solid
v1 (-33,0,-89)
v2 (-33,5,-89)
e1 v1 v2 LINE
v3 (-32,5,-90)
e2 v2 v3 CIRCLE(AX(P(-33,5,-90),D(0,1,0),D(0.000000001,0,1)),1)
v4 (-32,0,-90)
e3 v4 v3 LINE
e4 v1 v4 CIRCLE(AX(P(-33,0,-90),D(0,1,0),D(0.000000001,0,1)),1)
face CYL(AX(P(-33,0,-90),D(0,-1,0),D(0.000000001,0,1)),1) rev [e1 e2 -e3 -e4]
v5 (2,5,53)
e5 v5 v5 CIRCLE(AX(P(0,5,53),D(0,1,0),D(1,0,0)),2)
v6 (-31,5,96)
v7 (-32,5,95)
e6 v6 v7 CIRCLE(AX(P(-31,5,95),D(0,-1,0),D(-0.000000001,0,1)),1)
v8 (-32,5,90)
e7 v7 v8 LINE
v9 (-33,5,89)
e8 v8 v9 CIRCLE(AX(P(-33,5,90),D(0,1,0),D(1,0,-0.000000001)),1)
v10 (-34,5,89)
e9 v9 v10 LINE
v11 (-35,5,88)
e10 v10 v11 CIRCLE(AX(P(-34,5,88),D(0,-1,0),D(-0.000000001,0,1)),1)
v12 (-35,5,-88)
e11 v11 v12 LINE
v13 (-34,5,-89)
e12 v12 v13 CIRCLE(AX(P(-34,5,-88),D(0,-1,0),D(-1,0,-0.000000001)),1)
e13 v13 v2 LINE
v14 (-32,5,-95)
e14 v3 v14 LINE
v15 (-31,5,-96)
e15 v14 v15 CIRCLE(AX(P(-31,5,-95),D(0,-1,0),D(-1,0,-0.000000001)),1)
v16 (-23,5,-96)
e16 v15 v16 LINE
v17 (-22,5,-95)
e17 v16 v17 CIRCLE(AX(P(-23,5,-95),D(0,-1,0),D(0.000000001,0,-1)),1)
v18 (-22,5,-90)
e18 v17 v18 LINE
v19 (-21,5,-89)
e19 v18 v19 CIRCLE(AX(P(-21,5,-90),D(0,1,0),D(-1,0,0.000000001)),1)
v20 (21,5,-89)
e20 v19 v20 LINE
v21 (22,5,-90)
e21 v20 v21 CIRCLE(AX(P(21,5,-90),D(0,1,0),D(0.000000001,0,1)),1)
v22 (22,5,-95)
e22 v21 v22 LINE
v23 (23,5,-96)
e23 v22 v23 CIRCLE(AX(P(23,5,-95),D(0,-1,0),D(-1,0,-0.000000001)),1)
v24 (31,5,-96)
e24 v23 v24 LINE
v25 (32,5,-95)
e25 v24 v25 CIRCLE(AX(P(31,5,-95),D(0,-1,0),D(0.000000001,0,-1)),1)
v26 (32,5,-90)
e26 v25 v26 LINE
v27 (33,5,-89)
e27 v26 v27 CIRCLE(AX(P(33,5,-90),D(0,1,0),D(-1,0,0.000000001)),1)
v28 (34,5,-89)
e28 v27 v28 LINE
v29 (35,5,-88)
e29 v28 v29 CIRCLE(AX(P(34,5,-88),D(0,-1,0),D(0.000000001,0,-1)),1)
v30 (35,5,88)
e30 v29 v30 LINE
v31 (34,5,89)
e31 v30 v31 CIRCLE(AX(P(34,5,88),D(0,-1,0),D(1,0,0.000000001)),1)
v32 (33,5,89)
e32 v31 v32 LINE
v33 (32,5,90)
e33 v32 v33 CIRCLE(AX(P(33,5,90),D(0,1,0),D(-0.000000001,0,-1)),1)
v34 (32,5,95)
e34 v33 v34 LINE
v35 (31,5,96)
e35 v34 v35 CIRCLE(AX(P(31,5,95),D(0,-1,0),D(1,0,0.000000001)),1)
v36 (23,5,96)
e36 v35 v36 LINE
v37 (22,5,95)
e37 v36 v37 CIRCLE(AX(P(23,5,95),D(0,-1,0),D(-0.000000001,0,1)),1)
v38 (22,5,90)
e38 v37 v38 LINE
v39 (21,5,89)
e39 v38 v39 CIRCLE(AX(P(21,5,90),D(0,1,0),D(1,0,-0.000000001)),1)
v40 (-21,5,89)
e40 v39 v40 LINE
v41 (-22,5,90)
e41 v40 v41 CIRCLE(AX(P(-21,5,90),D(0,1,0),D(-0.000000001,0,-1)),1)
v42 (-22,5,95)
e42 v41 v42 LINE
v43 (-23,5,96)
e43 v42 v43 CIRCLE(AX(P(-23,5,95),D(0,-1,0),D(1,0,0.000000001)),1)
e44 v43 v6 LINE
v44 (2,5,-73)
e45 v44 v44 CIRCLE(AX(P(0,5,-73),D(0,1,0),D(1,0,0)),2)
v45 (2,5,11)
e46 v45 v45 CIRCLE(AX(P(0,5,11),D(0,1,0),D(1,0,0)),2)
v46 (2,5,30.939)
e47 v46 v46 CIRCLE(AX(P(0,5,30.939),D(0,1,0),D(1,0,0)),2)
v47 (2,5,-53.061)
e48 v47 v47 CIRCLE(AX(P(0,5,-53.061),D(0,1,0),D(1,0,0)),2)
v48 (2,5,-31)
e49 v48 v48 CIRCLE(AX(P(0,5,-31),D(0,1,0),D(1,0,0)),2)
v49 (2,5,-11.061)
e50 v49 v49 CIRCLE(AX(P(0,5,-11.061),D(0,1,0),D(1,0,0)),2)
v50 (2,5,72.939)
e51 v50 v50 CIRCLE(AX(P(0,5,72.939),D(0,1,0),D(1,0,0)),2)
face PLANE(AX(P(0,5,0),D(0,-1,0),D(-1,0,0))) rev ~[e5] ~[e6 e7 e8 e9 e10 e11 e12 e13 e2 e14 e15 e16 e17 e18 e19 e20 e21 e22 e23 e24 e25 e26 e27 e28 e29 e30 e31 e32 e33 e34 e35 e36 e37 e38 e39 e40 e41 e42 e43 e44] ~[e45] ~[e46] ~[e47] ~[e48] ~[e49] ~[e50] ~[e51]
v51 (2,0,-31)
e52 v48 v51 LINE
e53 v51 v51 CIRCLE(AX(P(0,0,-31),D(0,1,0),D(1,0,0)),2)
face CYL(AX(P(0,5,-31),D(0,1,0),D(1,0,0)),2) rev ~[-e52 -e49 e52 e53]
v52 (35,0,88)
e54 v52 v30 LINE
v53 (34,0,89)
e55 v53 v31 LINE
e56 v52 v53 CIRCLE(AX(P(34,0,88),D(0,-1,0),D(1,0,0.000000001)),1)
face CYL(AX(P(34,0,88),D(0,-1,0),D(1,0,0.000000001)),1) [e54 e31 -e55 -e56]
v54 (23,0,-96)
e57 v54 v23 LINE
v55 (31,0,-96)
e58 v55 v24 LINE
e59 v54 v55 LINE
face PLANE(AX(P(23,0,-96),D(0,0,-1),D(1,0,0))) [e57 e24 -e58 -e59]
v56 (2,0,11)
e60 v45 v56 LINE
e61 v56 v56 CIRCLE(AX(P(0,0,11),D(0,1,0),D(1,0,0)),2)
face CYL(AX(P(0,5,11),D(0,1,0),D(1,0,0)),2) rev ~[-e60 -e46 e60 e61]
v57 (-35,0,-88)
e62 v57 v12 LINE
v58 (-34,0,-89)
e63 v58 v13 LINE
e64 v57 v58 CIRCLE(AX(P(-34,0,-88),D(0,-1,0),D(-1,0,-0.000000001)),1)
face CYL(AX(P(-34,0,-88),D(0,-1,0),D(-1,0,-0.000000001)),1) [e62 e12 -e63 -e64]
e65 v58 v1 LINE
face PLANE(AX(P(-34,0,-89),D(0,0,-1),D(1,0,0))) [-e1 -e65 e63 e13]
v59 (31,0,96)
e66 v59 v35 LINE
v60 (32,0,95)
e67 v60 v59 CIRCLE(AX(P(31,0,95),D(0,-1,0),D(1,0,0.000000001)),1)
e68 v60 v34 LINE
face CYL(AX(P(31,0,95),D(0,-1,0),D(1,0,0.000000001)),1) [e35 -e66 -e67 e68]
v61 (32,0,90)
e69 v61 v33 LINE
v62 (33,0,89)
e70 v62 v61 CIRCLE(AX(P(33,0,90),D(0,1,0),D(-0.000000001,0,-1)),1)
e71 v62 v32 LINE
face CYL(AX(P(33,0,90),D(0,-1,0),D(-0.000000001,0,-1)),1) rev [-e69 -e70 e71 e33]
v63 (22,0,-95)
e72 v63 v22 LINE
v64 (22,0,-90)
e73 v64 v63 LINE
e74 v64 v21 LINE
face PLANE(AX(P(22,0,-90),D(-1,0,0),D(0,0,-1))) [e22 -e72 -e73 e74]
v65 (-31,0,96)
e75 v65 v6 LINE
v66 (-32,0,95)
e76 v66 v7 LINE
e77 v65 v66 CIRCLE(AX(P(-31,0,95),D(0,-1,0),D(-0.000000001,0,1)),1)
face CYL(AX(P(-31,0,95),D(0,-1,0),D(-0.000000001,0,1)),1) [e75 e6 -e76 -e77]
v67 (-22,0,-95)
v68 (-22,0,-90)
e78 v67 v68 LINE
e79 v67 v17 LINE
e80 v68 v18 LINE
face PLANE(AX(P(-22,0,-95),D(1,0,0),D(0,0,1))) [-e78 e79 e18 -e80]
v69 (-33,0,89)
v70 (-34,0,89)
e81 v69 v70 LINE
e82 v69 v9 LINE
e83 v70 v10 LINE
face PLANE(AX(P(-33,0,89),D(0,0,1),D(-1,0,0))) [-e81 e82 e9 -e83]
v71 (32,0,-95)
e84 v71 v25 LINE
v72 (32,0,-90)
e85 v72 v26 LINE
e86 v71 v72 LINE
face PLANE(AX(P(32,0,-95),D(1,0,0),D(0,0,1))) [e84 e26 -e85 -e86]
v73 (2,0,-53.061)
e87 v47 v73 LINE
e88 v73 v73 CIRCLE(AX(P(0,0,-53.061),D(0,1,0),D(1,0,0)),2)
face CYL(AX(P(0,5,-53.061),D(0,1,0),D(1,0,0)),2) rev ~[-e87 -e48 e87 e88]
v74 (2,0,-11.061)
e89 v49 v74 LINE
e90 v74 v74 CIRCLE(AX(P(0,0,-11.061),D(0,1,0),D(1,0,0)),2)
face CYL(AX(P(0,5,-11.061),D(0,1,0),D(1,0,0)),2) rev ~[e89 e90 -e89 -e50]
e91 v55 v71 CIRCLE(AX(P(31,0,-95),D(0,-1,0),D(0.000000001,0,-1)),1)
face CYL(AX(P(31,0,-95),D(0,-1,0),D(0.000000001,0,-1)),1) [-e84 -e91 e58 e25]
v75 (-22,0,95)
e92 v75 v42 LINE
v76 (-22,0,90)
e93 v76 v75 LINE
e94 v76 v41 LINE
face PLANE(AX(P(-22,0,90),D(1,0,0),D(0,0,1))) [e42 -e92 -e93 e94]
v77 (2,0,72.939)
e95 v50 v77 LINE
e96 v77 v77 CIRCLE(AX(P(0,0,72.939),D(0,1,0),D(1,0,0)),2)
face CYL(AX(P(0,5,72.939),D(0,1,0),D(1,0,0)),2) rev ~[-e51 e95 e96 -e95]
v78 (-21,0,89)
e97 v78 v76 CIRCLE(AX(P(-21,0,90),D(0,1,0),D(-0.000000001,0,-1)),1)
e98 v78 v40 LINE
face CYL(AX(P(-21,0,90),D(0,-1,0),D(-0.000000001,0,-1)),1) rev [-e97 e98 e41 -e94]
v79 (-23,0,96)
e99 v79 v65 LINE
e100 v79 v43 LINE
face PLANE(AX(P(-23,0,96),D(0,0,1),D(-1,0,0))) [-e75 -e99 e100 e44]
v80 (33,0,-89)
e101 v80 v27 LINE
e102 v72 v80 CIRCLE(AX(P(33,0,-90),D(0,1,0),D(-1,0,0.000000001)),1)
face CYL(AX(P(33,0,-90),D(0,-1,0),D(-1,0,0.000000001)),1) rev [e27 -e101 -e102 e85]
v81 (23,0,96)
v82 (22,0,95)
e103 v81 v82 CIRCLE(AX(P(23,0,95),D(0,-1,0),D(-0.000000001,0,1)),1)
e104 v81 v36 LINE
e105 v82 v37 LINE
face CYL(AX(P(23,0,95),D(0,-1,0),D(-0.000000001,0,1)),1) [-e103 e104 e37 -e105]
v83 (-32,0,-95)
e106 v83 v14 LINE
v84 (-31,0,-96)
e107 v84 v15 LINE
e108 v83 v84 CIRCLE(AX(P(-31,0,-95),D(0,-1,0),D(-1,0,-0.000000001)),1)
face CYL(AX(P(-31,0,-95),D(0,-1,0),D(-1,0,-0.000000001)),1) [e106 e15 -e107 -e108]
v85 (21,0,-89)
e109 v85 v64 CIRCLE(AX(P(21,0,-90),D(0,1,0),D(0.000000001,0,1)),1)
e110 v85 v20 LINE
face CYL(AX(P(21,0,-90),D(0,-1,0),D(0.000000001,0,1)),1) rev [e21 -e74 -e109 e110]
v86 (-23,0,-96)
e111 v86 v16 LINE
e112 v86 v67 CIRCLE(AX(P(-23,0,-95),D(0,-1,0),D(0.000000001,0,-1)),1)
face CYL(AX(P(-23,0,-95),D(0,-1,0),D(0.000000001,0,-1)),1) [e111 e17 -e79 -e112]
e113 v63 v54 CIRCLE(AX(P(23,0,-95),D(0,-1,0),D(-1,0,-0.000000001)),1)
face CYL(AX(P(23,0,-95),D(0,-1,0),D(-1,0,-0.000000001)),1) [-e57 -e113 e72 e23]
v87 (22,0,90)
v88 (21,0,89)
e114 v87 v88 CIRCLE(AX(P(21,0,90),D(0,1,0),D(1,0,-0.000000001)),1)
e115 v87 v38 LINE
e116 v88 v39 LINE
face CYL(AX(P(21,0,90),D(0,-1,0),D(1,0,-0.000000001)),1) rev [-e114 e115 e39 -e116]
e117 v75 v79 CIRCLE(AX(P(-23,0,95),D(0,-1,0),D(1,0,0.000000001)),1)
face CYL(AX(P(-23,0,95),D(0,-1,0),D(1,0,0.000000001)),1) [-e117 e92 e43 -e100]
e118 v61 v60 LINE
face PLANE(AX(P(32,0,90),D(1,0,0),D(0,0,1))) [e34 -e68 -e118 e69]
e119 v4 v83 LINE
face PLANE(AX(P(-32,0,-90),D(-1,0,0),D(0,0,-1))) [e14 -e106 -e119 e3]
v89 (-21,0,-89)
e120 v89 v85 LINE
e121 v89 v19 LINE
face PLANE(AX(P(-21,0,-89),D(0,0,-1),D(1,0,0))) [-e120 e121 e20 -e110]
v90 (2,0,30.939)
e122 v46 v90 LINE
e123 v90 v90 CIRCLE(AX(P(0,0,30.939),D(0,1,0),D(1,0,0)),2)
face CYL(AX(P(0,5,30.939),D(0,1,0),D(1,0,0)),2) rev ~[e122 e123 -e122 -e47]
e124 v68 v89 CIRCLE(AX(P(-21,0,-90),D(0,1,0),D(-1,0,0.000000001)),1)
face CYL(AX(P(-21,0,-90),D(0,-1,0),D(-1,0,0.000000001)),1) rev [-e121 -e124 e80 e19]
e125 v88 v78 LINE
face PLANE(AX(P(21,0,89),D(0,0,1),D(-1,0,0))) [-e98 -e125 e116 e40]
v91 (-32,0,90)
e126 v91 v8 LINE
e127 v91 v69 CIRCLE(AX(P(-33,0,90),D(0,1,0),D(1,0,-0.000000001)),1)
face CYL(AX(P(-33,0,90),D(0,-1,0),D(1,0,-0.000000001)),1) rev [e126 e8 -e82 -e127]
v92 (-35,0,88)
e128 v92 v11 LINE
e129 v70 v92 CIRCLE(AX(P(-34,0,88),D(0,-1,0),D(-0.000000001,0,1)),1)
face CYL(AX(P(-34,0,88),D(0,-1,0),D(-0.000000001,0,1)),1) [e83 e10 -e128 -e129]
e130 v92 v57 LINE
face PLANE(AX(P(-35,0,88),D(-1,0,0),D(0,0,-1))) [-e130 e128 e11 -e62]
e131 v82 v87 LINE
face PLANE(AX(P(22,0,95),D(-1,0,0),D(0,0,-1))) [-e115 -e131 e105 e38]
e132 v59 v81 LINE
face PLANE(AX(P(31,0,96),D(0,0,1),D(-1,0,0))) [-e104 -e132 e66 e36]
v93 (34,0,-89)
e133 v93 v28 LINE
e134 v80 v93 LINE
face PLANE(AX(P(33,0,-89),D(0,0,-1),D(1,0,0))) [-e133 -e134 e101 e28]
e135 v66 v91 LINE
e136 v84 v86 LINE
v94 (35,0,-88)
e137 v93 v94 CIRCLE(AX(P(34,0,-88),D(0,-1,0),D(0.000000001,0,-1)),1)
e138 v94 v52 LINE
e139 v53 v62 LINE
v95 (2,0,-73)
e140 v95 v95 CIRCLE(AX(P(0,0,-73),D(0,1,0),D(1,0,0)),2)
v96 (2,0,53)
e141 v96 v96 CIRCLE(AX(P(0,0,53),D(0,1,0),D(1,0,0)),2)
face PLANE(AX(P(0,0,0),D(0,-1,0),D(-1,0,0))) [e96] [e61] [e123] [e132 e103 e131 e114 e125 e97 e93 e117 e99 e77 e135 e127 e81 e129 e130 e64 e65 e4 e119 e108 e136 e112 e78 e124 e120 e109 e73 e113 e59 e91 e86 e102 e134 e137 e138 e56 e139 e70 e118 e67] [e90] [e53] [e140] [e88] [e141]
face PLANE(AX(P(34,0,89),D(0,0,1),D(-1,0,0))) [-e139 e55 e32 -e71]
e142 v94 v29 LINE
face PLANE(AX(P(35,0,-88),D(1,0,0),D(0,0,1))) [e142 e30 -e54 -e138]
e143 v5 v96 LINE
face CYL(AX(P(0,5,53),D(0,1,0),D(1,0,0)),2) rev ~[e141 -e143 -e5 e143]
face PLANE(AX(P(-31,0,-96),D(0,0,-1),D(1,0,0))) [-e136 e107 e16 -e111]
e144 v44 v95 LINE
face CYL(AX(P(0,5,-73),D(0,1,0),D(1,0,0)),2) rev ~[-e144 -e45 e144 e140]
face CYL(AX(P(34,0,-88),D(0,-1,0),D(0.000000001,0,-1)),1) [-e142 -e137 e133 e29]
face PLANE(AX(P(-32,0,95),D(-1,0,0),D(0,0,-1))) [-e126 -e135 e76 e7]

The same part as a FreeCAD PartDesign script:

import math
import FreeCAD as App
import Part
import Sketcher
Q = App.Units.Quantity

doc = App.newDocument("Part")
body = doc.addObject("PartDesign::Body", "Body")

sketch1 = body.newObject("Sketcher::SketchObject", "Sketch")
sketch1.AttachmentSupport = (doc.getObject("XZ_Plane"), [""])
sketch1.MapMode = "FlatFace"
sketch1.addGeometry([
    Part.LineSegment(App.Vector(33, 89, 0), App.Vector(34, 89, 0)),
    Part.ArcOfCircle(Part.Circle(App.Vector(34, 88, 0), App.Vector(0, 0, 1), 1), math.radians(0), math.radians(90)),
    Part.LineSegment(App.Vector(35, 88, 0), App.Vector(35, -88, 0)),
    Part.ArcOfCircle(Part.Circle(App.Vector(34, -88, 0), App.Vector(0, 0, 1), 1), math.radians(-90), math.radians(0)),
    Part.LineSegment(App.Vector(34, -89, 0), App.Vector(33, -89, 0)),
    Part.ArcOfCircle(Part.Circle(App.Vector(33, -90, 0), App.Vector(0, 0, 1), 1), math.radians(90), math.radians(180)),
    Part.LineSegment(App.Vector(32, -90, 0), App.Vector(32, -95, 0)),
    Part.ArcOfCircle(Part.Circle(App.Vector(31, -95, 0), App.Vector(0, 0, 1), 1), math.radians(-90), math.radians(0)),
    Part.LineSegment(App.Vector(31, -96, 0), App.Vector(23, -96, 0)),
    Part.ArcOfCircle(Part.Circle(App.Vector(23, -95, 0), App.Vector(0, 0, 1), 1), math.radians(-180), math.radians(-90)),
    Part.LineSegment(App.Vector(22, -95, 0), App.Vector(22, -90, 0)),
    Part.ArcOfCircle(Part.Circle(App.Vector(21, -90, 0), App.Vector(0, 0, 1), 1), math.radians(0), math.radians(90)),
    Part.LineSegment(App.Vector(21, -89, 0), App.Vector(-21, -89, 0)),
    Part.ArcOfCircle(Part.Circle(App.Vector(-21, -90, 0), App.Vector(0, 0, 1), 1), math.radians(90), math.radians(180)),
    Part.LineSegment(App.Vector(-22, -90, 0), App.Vector(-22, -95, 0)),
    Part.ArcOfCircle(Part.Circle(App.Vector(-23, -95, 0), App.Vector(0, 0, 1), 1), math.radians(-90), math.radians(0)),
    Part.LineSegment(App.Vector(-23, -96, 0), App.Vector(-31, -96, 0)),
    Part.ArcOfCircle(Part.Circle(App.Vector(-31, -95, 0), App.Vector(0, 0, 1), 1), math.radians(-180), math.radians(-90)),
    Part.LineSegment(App.Vector(-32, -95, 0), App.Vector(-32, -90, 0)),
    Part.ArcOfCircle(Part.Circle(App.Vector(-33, -90, 0), App.Vector(0, 0, 1), 1), math.radians(0), math.radians(90)),
    Part.LineSegment(App.Vector(-33, -89, 0), App.Vector(-34, -89, 0)),
    Part.ArcOfCircle(Part.Circle(App.Vector(-34, -88, 0), App.Vector(0, 0, 1), 1), math.radians(-180), math.radians(-90)),
    Part.LineSegment(App.Vector(-35, -88, 0), App.Vector(-35, 88, 0)),
    Part.ArcOfCircle(Part.Circle(App.Vector(-34, 88, 0), App.Vector(0, 0, 1), 1), math.radians(90), math.radians(180)),
    Part.LineSegment(App.Vector(-34, 89, 0), App.Vector(-33, 89, 0)),
    Part.ArcOfCircle(Part.Circle(App.Vector(-33, 90, 0), App.Vector(0, 0, 1), 1), math.radians(-90), math.radians(0)),
    Part.LineSegment(App.Vector(-32, 90, 0), App.Vector(-32, 95, 0)),
    Part.ArcOfCircle(Part.Circle(App.Vector(-31, 95, 0), App.Vector(0, 0, 1), 1), math.radians(90), math.radians(180)),
    Part.LineSegment(App.Vector(-31, 96, 0), App.Vector(-23, 96, 0)),
    Part.ArcOfCircle(Part.Circle(App.Vector(-23, 95, 0), App.Vector(0, 0, 1), 1), math.radians(0), math.radians(90)),
    Part.LineSegment(App.Vector(-22, 95, 0), App.Vector(-22, 90, 0)),
    Part.ArcOfCircle(Part.Circle(App.Vector(-21, 90, 0), App.Vector(0, 0, 1), 1), math.radians(-180), math.radians(-90)),
    Part.LineSegment(App.Vector(-21, 89, 0), App.Vector(21, 89, 0)),
    Part.ArcOfCircle(Part.Circle(App.Vector(21, 90, 0), App.Vector(0, 0, 1), 1), math.radians(-90), math.radians(0)),
    Part.LineSegment(App.Vector(22, 90, 0), App.Vector(22, 95, 0)),
    Part.ArcOfCircle(Part.Circle(App.Vector(23, 95, 0), App.Vector(0, 0, 1), 1), math.radians(90), math.radians(180)),
    Part.LineSegment(App.Vector(23, 96, 0), App.Vector(31, 96, 0)),
    Part.ArcOfCircle(Part.Circle(App.Vector(31, 95, 0), App.Vector(0, 0, 1), 1), math.radians(0), math.radians(90)),
    Part.LineSegment(App.Vector(32, 95, 0), App.Vector(32, 90, 0)),
    Part.ArcOfCircle(Part.Circle(App.Vector(33, 90, 0), App.Vector(0, 0, 1), 1), math.radians(-180), math.radians(-90)),
], False)
sketch1.addConstraint([
    Sketcher.Constraint("Tangent", 0, 2, 1, 2),
    Sketcher.Constraint("Tangent", 1, 1, 2, 1),
    Sketcher.Constraint("Tangent", 2, 2, 3, 2),
    Sketcher.Constraint("Tangent", 3, 1, 4, 1),
    Sketcher.Constraint("Tangent", 4, 2, 5, 1),
    Sketcher.Constraint("Tangent", 5, 2, 6, 1),
    Sketcher.Constraint("Tangent", 6, 2, 7, 2),
    Sketcher.Constraint("Tangent", 7, 1, 8, 1),
    Sketcher.Constraint("Tangent", 8, 2, 9, 2),
    Sketcher.Constraint("Tangent", 9, 1, 10, 1),
    Sketcher.Constraint("Tangent", 10, 2, 11, 1),
    Sketcher.Constraint("Tangent", 11, 2, 12, 1),
    Sketcher.Constraint("Tangent", 12, 2, 13, 1),
    Sketcher.Constraint("Tangent", 13, 2, 14, 1),
    Sketcher.Constraint("Tangent", 14, 2, 15, 2),
    Sketcher.Constraint("Tangent", 15, 1, 16, 1),
    Sketcher.Constraint("Tangent", 16, 2, 17, 2),
    Sketcher.Constraint("Tangent", 17, 1, 18, 1),
    Sketcher.Constraint("Tangent", 18, 2, 19, 1),
    Sketcher.Constraint("Tangent", 19, 2, 20, 1),
    Sketcher.Constraint("Tangent", 20, 2, 21, 2),
    Sketcher.Constraint("Tangent", 21, 1, 22, 1),
    Sketcher.Constraint("Tangent", 22, 2, 23, 2),
    Sketcher.Constraint("Tangent", 23, 1, 24, 1),
    Sketcher.Constraint("Tangent", 24, 2, 25, 1),
    Sketcher.Constraint("Tangent", 25, 2, 26, 1),
    Sketcher.Constraint("Tangent", 26, 2, 27, 2),
    Sketcher.Constraint("Tangent", 27, 1, 28, 1),
    Sketcher.Constraint("Tangent", 28, 2, 29, 2),
    Sketcher.Constraint("Tangent", 29, 1, 30, 1),
    Sketcher.Constraint("Tangent", 30, 2, 31, 1),
    Sketcher.Constraint("Tangent", 31, 2, 32, 1),
    Sketcher.Constraint("Tangent", 32, 2, 33, 1),
    Sketcher.Constraint("Tangent", 33, 2, 34, 1),
    Sketcher.Constraint("Tangent", 34, 2, 35, 2),
    Sketcher.Constraint("Tangent", 35, 1, 36, 1),
    Sketcher.Constraint("Tangent", 36, 2, 37, 2),
    Sketcher.Constraint("Tangent", 37, 1, 38, 1),
    Sketcher.Constraint("Tangent", 38, 2, 39, 1),
    Sketcher.Constraint("Tangent", 39, 2, 0, 1),
    Sketcher.Constraint("Horizontal", 0),
    Sketcher.Constraint("Vertical", 2),
    Sketcher.Constraint("Horizontal", 4),
    Sketcher.Constraint("Vertical", 6),
    Sketcher.Constraint("Horizontal", 8),
    Sketcher.Constraint("Vertical", 10),
    Sketcher.Constraint("Horizontal", 12),
    Sketcher.Constraint("Vertical", 14),
    Sketcher.Constraint("Horizontal", 16),
    Sketcher.Constraint("Vertical", 18),
    Sketcher.Constraint("Horizontal", 20),
    Sketcher.Constraint("Vertical", 22),
    Sketcher.Constraint("Horizontal", 24),
    Sketcher.Constraint("Vertical", 26),
    Sketcher.Constraint("Horizontal", 28),
    Sketcher.Constraint("Vertical", 30),
    Sketcher.Constraint("Horizontal", 32),
    Sketcher.Constraint("Vertical", 34),
    Sketcher.Constraint("Horizontal", 36),
    Sketcher.Constraint("Vertical", 38),
    Sketcher.Constraint("Equal", 1, 3),
    Sketcher.Constraint("Equal", 3, 5),
    Sketcher.Constraint("Equal", 5, 7),
    Sketcher.Constraint("Equal", 7, 9),
    Sketcher.Constraint("Equal", 9, 11),
    Sketcher.Constraint("Equal", 11, 13),
    Sketcher.Constraint("Equal", 13, 15),
    Sketcher.Constraint("Equal", 15, 17),
    Sketcher.Constraint("Equal", 17, 19),
    Sketcher.Constraint("Equal", 19, 21),
    Sketcher.Constraint("Equal", 21, 23),
    Sketcher.Constraint("Equal", 23, 25),
    Sketcher.Constraint("Equal", 25, 27),
    Sketcher.Constraint("Equal", 27, 29),
    Sketcher.Constraint("Equal", 29, 31),
    Sketcher.Constraint("Equal", 31, 33),
    Sketcher.Constraint("Equal", 33, 35),
    Sketcher.Constraint("Equal", 35, 37),
    Sketcher.Constraint("Equal", 37, 39),
    Sketcher.Constraint("Symmetric", 1, 3, 21, 3, -1, 1),
    Sketcher.Constraint("Symmetric", 5, 3, 25, 3, -1, 1),
    Sketcher.Constraint("Symmetric", 9, 3, 29, 3, -1, 1),
    Sketcher.Constraint("Symmetric", 13, 3, 33, 3, -1, 1),
    Sketcher.Constraint("Symmetric", 17, 3, 37, 3, -1, 1),
    Sketcher.Constraint("Symmetric", 9, 3, 15, 3, -2),
    Sketcher.Constraint("Symmetric", 5, 3, 19, 3, -2),
    Sketcher.Constraint("Horizontal", 5, 3, 11, 3),
    Sketcher.Constraint("Radius", 1, Q("1 mm")),
    Sketcher.Constraint("DistanceX", 0, 1, 0, 2, Q("1 mm")),
    Sketcher.Constraint("DistanceX", 8, 2, 8, 1, Q("8 mm")),
    Sketcher.Constraint("DistanceX", 12, 2, 12, 1, Q("42 mm")),
    Sketcher.Constraint("DistanceY", 2, 2, 2, 1, Q("176 mm")),
    Sketcher.Constraint("DistanceY", 6, 2, 6, 1, Q("5 mm")),
])
pad1 = body.newObject("PartDesign::Pad", "Pad")
pad1.Profile = sketch1
pad1.Length = 5
pad1.Reversed = True

sketch2 = body.newObject("Sketcher::SketchObject", "Sketch001")
sketch2.AttachmentSupport = (doc.getObject("XZ_Plane"), [""])
sketch2.MapMode = "FlatFace"
sketch2.AttachmentOffset = App.Placement(App.Vector(0, 0, -5), App.Rotation())
sketch2.addGeometry([
    Part.Circle(App.Vector(0, -73, 0), App.Vector(0, 0, 1), 2),
    Part.Circle(App.Vector(0, -53.1, 0), App.Vector(0, 0, 1), 2),
    Part.Circle(App.Vector(0, -11.1, 0), App.Vector(0, 0, 1), 2),
    Part.Circle(App.Vector(0, -31, 0), App.Vector(0, 0, 1), 2),
    Part.Circle(App.Vector(0, 30.9, 0), App.Vector(0, 0, 1), 2),
    Part.Circle(App.Vector(0, 11, 0), App.Vector(0, 0, 1), 2),
    Part.Circle(App.Vector(0, 72.9, 0), App.Vector(0, 0, 1), 2),
    Part.Circle(App.Vector(0, 53, 0), App.Vector(0, 0, 1), 2),
], False)
sketch2.addConstraint([
    Sketcher.Constraint("Equal", 0, 1),
    Sketcher.Constraint("Equal", 1, 2),
    Sketcher.Constraint("Equal", 2, 3),
    Sketcher.Constraint("Equal", 3, 4),
    Sketcher.Constraint("Equal", 4, 5),
    Sketcher.Constraint("Equal", 5, 6),
    Sketcher.Constraint("Equal", 6, 7),
    Sketcher.Constraint("PointOnObject", 0, 3, -2),
    Sketcher.Constraint("PointOnObject", 1, 3, -2),
    Sketcher.Constraint("PointOnObject", 2, 3, -2),
    Sketcher.Constraint("PointOnObject", 3, 3, -2),
    Sketcher.Constraint("PointOnObject", 4, 3, -2),
    Sketcher.Constraint("PointOnObject", 5, 3, -2),
    Sketcher.Constraint("PointOnObject", 6, 3, -2),
    Sketcher.Constraint("PointOnObject", 7, 3, -2),
    Sketcher.Constraint("Diameter", 0, Q("4 mm")),
    Sketcher.Constraint("DistanceY", 0, 3, -1, 1, Q("73 mm")),
    Sketcher.Constraint("DistanceY", 3, 3, -1, 1, Q("31 mm")),
    Sketcher.Constraint("DistanceY", -1, 1, 5, 3, Q("11 mm")),
    Sketcher.Constraint("DistanceY", -1, 1, 7, 3, Q("53 mm")),
    Sketcher.Constraint("DistanceY", 1, 3, 2, 3, Q("42 mm")),
    Sketcher.Constraint("DistanceY", 2, 3, 4, 3, Q("42 mm")),
    Sketcher.Constraint("DistanceY", 4, 3, 6, 3, Q("42 mm")),
    Sketcher.Constraint("DistanceY", 1, 3, -1, 1, Q("53.061 mm")),
])
pocket1 = body.newObject("PartDesign::Pocket", "Pocket")
pocket1.Profile = sketch2
pocket1.Length = 10
pocket1.Reversed = True

doc.recompute()
